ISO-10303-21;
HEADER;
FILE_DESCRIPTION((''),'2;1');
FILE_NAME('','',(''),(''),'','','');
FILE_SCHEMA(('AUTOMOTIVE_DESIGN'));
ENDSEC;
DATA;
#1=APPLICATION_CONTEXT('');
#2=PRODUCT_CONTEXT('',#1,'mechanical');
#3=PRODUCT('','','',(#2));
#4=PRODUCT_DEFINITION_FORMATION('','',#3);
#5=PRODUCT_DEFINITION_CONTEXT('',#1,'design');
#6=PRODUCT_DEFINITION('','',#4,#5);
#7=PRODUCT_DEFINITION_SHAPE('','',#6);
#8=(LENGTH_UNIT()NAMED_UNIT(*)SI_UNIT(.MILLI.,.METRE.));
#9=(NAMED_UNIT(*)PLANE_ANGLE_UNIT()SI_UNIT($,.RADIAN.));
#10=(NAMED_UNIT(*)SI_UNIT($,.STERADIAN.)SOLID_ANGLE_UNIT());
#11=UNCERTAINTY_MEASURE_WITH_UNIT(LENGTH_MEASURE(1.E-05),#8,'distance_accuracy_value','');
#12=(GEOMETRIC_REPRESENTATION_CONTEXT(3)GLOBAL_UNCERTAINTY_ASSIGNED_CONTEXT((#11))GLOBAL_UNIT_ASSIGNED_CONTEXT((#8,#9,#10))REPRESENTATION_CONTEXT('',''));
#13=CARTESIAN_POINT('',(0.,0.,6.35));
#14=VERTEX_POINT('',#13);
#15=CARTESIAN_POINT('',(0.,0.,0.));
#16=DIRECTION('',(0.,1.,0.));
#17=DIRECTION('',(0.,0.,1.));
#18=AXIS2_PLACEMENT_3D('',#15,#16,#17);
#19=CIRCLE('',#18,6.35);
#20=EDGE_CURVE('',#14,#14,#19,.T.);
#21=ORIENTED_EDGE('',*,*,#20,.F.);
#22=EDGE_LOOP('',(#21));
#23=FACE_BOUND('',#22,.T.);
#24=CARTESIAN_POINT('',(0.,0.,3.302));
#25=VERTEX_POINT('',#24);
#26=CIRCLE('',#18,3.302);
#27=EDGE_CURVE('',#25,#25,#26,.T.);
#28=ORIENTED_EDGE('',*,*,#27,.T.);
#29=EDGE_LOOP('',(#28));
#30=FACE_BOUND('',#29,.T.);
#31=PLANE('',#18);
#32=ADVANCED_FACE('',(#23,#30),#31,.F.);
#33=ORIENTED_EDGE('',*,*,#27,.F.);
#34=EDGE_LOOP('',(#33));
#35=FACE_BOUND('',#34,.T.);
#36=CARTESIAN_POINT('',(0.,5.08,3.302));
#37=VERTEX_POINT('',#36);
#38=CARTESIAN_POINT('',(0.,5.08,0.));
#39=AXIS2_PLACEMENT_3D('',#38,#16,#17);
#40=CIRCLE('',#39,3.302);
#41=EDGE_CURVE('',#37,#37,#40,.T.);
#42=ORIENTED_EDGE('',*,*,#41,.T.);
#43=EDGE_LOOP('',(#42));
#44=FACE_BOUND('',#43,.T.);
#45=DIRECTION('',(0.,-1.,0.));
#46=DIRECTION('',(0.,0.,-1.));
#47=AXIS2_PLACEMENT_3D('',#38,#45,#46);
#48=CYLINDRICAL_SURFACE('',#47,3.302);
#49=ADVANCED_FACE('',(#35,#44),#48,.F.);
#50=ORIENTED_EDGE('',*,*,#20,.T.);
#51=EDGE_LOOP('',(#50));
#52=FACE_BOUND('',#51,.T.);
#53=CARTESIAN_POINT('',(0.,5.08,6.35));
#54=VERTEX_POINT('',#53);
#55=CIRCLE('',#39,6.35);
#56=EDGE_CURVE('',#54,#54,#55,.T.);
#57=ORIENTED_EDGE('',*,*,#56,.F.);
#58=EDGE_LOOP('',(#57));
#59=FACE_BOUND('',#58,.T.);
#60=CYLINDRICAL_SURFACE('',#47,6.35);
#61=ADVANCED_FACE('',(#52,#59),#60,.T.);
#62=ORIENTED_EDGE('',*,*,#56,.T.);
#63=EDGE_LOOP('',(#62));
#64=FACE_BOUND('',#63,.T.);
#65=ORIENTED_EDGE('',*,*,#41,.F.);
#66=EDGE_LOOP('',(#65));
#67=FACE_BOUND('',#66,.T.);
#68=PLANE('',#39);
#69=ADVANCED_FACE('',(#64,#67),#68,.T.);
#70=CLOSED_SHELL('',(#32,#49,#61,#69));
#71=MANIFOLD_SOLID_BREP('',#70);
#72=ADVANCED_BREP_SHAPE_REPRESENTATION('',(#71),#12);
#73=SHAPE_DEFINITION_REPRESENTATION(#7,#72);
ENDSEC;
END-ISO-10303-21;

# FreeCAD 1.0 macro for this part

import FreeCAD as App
import Part
import Sketcher

V = App.Vector
Q = App.Units.Quantity

doc = App.newDocument("Part")
body = doc.addObject("PartDesign::Body", "Body")

# Sketch on XZ plane
sketch1 = body.newObject("Sketcher::SketchObject", "Sketch")
sketch1.AttachmentSupport = (doc.getObject("XZ_Plane"), [""])
sketch1.MapMode = "FlatFace"
sketch1.addGeometry([
    Part.Circle(V(0, 0, 0), V(0, 0, 1), 6.3),
    Part.Circle(V(0, 0, 0), V(0, 0, 1), 3.3),
], False)
sketch1.addConstraint([
    Sketcher.Constraint("Coincident", 0, 3, -1, 1),
    Sketcher.Constraint("Coincident", 1, 3, -1, 1),
    Sketcher.Constraint("Diameter", 0, Q("0.5 in")),
    Sketcher.Constraint("Diameter", 1, Q("0.26 in")),
])
pad1 = body.newObject("PartDesign::Pad", "Pad")
pad1.Profile = sketch1
pad1.Length = Q("0.2 in")
pad1.Reversed = True

doc.recompute()
